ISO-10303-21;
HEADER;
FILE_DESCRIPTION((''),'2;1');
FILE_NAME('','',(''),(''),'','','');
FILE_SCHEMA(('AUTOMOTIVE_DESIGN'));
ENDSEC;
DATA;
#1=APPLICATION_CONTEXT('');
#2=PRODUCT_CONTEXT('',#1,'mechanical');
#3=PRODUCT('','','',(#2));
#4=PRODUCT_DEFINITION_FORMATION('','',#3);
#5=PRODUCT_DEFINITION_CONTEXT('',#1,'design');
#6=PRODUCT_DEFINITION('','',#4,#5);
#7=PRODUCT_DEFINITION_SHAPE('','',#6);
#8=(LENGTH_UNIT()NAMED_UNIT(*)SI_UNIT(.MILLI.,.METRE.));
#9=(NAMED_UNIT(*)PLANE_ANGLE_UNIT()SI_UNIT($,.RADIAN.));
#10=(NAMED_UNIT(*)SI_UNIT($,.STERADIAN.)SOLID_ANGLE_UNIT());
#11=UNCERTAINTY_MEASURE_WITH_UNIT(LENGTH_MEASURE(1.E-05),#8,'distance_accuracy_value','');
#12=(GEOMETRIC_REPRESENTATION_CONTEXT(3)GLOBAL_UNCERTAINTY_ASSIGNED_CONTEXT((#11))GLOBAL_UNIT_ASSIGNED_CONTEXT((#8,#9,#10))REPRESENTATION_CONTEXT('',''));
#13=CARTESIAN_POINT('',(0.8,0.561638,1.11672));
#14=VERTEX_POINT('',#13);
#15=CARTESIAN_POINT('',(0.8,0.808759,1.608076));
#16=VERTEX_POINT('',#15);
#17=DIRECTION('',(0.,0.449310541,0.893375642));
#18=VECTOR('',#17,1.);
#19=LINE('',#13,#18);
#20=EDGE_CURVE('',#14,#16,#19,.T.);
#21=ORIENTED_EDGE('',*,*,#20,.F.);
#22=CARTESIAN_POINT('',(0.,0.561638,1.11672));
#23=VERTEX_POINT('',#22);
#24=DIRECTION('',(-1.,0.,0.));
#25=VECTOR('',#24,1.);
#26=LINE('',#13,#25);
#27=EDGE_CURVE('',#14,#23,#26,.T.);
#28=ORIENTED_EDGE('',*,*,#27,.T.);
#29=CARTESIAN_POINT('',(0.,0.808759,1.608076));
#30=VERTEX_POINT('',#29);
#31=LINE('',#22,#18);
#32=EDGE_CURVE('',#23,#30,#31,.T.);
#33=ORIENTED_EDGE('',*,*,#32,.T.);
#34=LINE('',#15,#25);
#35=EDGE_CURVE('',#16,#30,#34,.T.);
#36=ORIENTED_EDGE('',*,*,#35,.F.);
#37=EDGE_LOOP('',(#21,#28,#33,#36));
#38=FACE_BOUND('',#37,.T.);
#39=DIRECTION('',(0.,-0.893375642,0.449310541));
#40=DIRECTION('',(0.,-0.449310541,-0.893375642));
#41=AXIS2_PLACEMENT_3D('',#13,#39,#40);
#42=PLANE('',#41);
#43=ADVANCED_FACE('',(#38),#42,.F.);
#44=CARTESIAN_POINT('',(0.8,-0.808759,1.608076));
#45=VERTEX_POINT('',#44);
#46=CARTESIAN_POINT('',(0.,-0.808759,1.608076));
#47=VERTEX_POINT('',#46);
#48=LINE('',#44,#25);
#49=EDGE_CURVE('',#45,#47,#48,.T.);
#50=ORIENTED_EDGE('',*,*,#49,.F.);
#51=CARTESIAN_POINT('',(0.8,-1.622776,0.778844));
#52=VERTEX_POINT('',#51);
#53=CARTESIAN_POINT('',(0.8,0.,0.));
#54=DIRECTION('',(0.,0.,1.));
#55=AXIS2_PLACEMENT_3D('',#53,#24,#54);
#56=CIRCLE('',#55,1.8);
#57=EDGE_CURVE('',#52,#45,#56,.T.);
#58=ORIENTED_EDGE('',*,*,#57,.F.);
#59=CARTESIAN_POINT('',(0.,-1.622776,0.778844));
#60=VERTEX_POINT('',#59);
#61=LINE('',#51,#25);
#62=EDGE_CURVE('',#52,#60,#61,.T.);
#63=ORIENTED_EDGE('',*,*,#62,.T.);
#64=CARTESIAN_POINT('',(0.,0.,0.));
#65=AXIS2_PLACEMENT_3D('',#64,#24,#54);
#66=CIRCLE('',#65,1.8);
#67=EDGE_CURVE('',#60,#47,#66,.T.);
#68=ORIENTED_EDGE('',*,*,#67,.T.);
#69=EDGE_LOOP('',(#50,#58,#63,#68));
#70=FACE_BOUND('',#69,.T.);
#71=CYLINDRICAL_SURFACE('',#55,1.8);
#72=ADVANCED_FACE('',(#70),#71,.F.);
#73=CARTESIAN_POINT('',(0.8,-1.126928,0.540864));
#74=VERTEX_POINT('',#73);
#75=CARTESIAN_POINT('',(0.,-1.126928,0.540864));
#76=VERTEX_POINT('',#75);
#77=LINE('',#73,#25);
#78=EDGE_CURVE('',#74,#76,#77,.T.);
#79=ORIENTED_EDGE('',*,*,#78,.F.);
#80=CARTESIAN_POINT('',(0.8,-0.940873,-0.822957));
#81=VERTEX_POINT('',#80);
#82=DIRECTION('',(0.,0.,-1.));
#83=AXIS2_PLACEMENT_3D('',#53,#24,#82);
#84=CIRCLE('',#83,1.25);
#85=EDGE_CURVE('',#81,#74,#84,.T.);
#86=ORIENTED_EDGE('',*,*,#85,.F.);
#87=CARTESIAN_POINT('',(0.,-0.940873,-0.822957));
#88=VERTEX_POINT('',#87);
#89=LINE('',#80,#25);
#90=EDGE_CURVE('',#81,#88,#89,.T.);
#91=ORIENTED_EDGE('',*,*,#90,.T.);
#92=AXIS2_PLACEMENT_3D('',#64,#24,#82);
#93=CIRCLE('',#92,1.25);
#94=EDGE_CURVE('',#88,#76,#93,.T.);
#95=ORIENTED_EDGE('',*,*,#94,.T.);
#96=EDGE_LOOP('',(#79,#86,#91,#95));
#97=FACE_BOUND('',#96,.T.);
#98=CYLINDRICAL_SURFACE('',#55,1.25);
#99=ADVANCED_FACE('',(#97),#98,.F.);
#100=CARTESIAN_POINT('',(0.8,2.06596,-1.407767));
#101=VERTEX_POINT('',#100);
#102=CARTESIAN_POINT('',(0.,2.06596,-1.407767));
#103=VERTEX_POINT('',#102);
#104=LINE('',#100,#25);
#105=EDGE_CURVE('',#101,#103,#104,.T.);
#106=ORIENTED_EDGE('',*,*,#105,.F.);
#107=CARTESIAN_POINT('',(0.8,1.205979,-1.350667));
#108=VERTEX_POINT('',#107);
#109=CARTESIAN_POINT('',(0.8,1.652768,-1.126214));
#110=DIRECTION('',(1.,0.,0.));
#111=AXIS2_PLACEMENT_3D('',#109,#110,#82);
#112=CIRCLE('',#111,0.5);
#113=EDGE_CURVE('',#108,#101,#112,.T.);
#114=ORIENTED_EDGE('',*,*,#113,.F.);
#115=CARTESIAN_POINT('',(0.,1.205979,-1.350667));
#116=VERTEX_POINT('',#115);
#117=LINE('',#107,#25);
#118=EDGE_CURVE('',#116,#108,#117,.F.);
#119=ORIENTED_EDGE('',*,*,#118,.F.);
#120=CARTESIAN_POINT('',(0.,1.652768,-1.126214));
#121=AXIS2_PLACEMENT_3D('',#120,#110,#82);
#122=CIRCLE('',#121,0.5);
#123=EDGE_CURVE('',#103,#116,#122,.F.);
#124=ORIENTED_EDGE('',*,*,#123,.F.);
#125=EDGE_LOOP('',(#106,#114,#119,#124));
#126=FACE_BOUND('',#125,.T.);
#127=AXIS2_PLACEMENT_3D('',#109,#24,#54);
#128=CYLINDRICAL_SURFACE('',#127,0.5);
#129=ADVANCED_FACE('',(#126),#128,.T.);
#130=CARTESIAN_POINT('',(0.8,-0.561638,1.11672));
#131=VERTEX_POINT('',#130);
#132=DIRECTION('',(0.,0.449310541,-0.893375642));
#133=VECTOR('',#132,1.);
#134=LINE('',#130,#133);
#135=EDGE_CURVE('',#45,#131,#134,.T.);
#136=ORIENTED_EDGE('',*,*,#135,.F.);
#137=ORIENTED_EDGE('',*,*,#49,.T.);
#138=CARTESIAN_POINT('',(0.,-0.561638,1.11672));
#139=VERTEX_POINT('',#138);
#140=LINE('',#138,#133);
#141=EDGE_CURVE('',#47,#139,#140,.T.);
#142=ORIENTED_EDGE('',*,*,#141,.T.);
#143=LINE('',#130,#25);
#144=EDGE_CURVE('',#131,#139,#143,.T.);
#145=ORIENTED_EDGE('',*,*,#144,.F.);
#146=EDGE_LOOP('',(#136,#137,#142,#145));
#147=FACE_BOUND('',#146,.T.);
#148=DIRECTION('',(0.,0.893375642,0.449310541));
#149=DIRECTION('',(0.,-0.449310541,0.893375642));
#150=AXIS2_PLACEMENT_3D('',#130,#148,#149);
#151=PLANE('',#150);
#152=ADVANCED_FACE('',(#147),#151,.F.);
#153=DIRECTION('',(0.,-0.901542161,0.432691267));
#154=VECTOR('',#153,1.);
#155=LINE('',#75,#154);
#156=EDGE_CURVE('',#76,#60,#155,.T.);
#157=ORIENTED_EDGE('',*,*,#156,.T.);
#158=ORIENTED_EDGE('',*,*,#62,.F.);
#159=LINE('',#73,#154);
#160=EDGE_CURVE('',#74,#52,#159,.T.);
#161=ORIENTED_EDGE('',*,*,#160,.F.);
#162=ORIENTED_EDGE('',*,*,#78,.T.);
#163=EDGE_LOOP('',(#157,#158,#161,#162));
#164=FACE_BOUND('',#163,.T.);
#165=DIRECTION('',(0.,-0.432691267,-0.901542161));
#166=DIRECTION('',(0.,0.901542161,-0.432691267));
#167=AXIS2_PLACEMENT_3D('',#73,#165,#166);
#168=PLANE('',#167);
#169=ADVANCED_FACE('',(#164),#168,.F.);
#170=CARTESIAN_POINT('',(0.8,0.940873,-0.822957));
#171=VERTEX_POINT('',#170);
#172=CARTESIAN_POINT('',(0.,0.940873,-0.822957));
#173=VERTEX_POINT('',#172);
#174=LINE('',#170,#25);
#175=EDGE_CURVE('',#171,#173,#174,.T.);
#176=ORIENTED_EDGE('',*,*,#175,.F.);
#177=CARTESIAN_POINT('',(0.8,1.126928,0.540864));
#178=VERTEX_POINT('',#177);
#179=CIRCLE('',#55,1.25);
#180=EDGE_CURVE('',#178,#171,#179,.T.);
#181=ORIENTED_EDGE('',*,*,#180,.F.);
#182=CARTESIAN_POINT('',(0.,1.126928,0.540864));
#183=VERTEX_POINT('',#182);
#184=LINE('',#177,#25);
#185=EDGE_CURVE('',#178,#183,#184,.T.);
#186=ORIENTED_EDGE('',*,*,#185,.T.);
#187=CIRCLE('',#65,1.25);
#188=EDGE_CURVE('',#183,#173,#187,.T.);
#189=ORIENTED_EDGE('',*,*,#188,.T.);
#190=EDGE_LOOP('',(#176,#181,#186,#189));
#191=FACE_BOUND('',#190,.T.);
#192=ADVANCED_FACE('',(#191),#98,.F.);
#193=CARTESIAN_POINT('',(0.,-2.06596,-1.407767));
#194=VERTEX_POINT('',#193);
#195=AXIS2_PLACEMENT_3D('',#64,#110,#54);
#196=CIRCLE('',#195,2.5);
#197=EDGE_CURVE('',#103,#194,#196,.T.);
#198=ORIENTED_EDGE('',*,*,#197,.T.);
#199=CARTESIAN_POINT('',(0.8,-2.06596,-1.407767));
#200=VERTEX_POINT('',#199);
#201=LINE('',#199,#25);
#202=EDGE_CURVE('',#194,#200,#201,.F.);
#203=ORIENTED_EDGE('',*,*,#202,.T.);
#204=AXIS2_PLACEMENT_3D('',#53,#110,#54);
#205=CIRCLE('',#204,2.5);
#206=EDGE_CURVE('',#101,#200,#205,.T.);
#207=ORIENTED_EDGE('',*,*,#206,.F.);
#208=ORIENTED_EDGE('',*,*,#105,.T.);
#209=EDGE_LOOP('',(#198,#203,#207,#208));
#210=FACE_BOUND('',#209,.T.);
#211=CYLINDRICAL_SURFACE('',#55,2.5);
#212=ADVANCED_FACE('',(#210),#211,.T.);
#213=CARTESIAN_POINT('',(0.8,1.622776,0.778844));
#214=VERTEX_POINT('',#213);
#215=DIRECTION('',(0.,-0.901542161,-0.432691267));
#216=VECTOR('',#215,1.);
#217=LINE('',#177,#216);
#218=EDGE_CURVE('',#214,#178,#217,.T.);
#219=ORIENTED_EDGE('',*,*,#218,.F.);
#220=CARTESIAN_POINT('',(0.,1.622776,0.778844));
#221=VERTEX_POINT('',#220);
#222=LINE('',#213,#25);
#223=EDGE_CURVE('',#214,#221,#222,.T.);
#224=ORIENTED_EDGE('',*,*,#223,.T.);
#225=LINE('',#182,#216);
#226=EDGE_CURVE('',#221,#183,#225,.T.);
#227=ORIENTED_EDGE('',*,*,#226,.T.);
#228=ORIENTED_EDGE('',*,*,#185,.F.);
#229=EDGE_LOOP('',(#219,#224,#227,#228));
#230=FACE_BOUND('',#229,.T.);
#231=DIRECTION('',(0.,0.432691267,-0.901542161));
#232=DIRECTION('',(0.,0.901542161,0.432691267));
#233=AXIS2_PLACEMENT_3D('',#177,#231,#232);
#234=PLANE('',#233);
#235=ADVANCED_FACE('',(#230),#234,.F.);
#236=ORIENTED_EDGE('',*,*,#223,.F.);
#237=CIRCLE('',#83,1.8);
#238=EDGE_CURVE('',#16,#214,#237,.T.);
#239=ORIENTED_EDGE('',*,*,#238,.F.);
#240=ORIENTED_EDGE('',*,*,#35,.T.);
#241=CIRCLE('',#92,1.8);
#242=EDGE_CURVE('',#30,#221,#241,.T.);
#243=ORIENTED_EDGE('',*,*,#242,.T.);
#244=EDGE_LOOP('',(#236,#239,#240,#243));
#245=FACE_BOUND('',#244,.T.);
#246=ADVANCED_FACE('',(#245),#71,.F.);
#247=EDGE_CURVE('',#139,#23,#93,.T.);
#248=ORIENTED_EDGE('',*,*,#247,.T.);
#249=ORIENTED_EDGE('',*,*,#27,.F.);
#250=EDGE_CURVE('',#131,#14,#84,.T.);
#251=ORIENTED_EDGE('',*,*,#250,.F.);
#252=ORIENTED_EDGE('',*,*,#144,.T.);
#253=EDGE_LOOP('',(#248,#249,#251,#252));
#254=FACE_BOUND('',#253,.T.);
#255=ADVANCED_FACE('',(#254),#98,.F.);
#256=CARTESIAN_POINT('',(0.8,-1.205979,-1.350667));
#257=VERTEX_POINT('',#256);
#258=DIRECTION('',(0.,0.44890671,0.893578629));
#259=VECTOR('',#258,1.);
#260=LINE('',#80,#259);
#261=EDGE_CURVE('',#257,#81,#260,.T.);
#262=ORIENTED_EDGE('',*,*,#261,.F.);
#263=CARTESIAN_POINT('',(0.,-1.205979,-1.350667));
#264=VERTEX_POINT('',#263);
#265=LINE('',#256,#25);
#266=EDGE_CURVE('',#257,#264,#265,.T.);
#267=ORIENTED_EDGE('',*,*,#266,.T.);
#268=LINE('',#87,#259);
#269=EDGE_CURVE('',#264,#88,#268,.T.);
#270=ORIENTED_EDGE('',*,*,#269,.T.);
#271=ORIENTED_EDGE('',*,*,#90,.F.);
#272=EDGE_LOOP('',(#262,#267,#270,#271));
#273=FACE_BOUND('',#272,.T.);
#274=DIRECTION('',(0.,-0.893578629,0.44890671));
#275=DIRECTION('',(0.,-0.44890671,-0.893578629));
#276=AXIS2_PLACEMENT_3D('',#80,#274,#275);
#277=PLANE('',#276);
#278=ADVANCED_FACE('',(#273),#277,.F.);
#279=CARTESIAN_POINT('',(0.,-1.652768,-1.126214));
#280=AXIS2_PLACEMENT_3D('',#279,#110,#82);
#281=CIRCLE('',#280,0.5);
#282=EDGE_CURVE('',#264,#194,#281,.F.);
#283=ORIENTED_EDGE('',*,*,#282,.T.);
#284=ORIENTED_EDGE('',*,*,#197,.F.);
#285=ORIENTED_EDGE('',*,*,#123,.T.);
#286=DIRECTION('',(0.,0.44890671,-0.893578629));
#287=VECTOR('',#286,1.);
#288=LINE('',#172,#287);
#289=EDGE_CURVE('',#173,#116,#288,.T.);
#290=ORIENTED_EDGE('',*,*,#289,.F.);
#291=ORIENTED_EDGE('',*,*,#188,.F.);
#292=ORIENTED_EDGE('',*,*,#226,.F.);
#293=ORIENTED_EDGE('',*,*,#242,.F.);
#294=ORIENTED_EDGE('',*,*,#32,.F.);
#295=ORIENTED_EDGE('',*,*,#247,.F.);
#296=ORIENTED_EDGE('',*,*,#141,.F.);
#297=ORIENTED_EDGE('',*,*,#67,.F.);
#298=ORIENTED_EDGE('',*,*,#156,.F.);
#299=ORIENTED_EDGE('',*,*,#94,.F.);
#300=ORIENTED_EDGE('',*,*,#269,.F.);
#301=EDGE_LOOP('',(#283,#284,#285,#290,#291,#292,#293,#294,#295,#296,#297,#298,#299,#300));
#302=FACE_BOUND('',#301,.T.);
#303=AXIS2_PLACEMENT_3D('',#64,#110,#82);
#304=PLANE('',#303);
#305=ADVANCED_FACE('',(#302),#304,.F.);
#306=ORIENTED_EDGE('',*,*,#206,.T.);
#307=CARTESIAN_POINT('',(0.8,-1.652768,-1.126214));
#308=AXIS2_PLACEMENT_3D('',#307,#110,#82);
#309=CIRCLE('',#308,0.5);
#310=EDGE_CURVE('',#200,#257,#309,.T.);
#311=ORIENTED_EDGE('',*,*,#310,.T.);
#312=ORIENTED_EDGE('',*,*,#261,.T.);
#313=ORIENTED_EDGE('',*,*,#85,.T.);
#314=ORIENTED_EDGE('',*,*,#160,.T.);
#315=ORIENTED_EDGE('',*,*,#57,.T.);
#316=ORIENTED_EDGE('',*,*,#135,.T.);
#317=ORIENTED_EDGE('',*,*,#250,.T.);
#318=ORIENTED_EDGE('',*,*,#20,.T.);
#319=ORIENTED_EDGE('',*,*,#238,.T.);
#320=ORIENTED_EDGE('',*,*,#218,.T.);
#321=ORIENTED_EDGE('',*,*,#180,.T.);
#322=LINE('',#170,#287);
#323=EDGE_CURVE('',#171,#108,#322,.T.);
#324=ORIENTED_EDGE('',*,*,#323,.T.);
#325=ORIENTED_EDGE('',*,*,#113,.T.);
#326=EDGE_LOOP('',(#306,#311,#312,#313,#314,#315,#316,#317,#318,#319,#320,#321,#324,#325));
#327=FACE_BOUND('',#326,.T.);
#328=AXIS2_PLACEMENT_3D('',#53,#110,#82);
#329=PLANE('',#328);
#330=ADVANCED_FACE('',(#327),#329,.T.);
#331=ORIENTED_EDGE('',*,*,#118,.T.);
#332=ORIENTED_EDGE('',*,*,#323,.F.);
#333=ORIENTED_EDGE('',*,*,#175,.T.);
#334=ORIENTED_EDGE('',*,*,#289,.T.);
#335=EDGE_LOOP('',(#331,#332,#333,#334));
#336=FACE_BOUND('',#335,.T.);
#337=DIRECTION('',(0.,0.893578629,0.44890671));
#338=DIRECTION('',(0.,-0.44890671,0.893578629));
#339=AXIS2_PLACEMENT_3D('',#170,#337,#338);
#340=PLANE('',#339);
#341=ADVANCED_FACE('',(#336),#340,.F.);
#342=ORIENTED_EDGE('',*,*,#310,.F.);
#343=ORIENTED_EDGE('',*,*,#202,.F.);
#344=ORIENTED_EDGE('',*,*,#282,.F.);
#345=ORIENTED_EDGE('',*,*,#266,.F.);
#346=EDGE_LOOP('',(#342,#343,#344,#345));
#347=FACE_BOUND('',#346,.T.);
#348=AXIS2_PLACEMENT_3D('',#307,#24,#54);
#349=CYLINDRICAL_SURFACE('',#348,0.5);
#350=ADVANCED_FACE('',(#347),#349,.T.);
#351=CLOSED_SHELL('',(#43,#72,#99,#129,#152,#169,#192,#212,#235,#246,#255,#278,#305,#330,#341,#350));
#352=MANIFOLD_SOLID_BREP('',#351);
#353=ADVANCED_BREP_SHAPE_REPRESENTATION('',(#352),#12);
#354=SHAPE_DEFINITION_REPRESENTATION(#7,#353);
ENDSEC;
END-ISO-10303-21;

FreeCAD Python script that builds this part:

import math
import FreeCAD as App
import Part
import Sketcher
from FreeCAD import Vector


def edges_at(feature, points):
    """Names of the edges that pass closest to the given points."""
    edges = feature.Shape.Edges
    near = lambda p: min(range(len(edges)), key=lambda i: edges[i].distToShape(Part.Vertex(*p))[0])
    return sorted({f"Edge{near(p) + 1}" for p in points})

doc = App.newDocument("Part")
body = doc.addObject("PartDesign::Body", "Body")

# Sketch on YZ plane
sketch1 = doc.addObject("Sketcher::SketchObject", "Sketch")
body.addObject(sketch1)
sketch1.AttachmentSupport = (doc.YZ_Plane, [""])
sketch1.MapMode = "FlatFace"
sketch1.addGeometry([
    Part.LineSegment(Vector(-1.5, -2, 0), Vector(-0.9, -0.8, 0)),  # 0
    Part.ArcOfCircle(Part.Circle(Vector(0, 0, 0), Vector(0, 0, 1), 1.3), math.radians(154), math.radians(221)),  # 1
    Part.LineSegment(Vector(-1.1, 0.5, 0), Vector(-1.6, 0.8, 0)),  # 2
    Part.ArcOfCircle(Part.Circle(Vector(0, 0, 0), Vector(0, 0, 1), 1.8), math.radians(117), math.radians(154)),  # 3
    Part.LineSegment(Vector(-0.8, 1.6, 0), Vector(-0.6, 1.1, 0)),  # 4
    Part.ArcOfCircle(Part.Circle(Vector(0, 0, 0), Vector(0, 0, 1), 1.3), math.radians(63), math.radians(117)),  # 5
    Part.LineSegment(Vector(0.6, 1.1, 0), Vector(0.8, 1.6, 0)),  # 6
    Part.ArcOfCircle(Part.Circle(Vector(0, 0, 0), Vector(0, 0, 1), 1.8), math.radians(26), math.radians(63)),  # 7
    Part.LineSegment(Vector(1.6, 0.8, 0), Vector(1.1, 0.5, 0)),  # 8
    Part.ArcOfCircle(Part.Circle(Vector(0, 0, 0), Vector(0, 0, 1), 1.3), math.radians(-41), math.radians(26)),  # 9
    Part.LineSegment(Vector(0.9, -0.8, 0), Vector(1.5, -2, 0)),  # 10
    Part.ArcOfCircle(Part.Circle(Vector(0, 0, 0), Vector(0, 0, 1), 2.5), math.radians(-52), math.radians(232)),  # 11
], False)
sketch1.addConstraint([
    Sketcher.Constraint("Coincident", 0, 2, 1, 2),
    Sketcher.Constraint("Coincident", 1, 1, 2, 1),
    Sketcher.Constraint("Coincident", 2, 2, 3, 2),
    Sketcher.Constraint("Coincident", 3, 1, 4, 1),
    Sketcher.Constraint("Coincident", 4, 2, 5, 2),
    Sketcher.Constraint("Coincident", 5, 1, 6, 1),
    Sketcher.Constraint("Coincident", 6, 2, 7, 2),
    Sketcher.Constraint("Coincident", 7, 1, 8, 1),
    Sketcher.Constraint("Coincident", 8, 2, 9, 2),
    Sketcher.Constraint("Coincident", 9, 1, 10, 1),
    Sketcher.Constraint("Coincident", 10, 2, 11, 1),
    Sketcher.Constraint("Coincident", 11, 2, 0, 1),
    Sketcher.Constraint("Coincident", 1, 3, -1, 1),
    Sketcher.Constraint("Coincident", 3, 3, -1, 1),
    Sketcher.Constraint("Coincident", 5, 3, -1, 1),
    Sketcher.Constraint("Coincident", 7, 3, -1, 1),
    Sketcher.Constraint("Coincident", 9, 3, -1, 1),
    Sketcher.Constraint("Coincident", 11, 3, -1, 1),
    Sketcher.Constraint("Equal", 1, 5),
    Sketcher.Constraint("Equal", 3, 7),
    Sketcher.Constraint("Equal", 5, 9),
    Sketcher.Constraint("Horizontal", 4, 2, 5, 1),
    Sketcher.Constraint("Horizontal", 3, 1, 6, 2),
    Sketcher.Constraint("Horizontal", 2, 2, 7, 1),
    Sketcher.Constraint("Horizontal", 1, 1, 8, 2),
    Sketcher.Constraint("Horizontal", 0, 2, 9, 1),
    Sketcher.Constraint("Horizontal", 10, 2, 11, 2),
    Sketcher.Constraint("Radius", 3, 1.8),
    Sketcher.Constraint("Radius", 11, 2.5),
    Sketcher.Constraint("Radius", 1, 1.25),
    Sketcher.Constraint("DistanceX", -1, 1, 10, 2, 1.523298),
    Sketcher.Constraint("DistanceY", 0, 2, 2, 2, 1.601801),
    Sketcher.Constraint("Distance", 0, 1.29743),
    Sketcher.Constraint("DistanceX", 3, 1, -1, 1, 0.808759),
    Sketcher.Constraint("DistanceX", 4, 2, -1, 1, 0.561638),
    Sketcher.Constraint("DistanceX", 2, 2, 1, 1, 0.495848),
])
pad1 = doc.addObject("PartDesign::Pad", "Pad")
body.addObject(pad1)
pad1.Profile = sketch1
pad1.Length = 0.8
doc.recompute()

fillet = doc.addObject("PartDesign::Fillet", "Fillet")
body.addObject(fillet)
fillet.Base = (pad1, edges_at(pad1, [(0.4, -1.523, -1.982), (0.4, 1.523, -1.982)]))
fillet.Radius = 0.5

doc.recompute()
